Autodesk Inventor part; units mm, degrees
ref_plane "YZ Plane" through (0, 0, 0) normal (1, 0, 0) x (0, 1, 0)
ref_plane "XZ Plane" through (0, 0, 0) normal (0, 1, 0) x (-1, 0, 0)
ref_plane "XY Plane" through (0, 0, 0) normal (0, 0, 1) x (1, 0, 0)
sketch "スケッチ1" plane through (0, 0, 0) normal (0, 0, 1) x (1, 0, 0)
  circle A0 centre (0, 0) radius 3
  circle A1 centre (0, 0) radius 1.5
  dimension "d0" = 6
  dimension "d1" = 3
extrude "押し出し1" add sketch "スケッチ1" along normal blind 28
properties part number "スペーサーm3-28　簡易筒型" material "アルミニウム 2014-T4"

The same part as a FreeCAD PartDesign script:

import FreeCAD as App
import Part
import Sketcher
from FreeCAD import Vector
Q = App.Units.Quantity

doc = App.newDocument("Part")
body = doc.addObject("PartDesign::Body", "Body")

# Sketch on XY plane
sketch1 = body.newObject("Sketcher::SketchObject", "Sketch")
sketch1.AttachmentSupport = (doc.getObject("XY_Plane"), [""])
sketch1.MapMode = "FlatFace"
sketch1.addGeometry(Part.Circle(Vector(0, 0, 0), Vector(0, 0, 1), 3), False)
sketch1.addGeometry(Part.Circle(Vector(0, 0, 0), Vector(0, 0, 1), 1.5), False)
sketch1.addConstraint(Sketcher.Constraint("Coincident", 0, 3, -1, 1))
sketch1.addConstraint(Sketcher.Constraint("Coincident", 1, 3, -1, 1))
sketch1.addConstraint(Sketcher.Constraint("Diameter", 0, Q("6 mm")))
sketch1.addConstraint(Sketcher.Constraint("Diameter", 1, Q("3 mm")))
pad1 = body.newObject("PartDesign::Pad", "Pad")
pad1.Profile = sketch1
pad1.Length = 28

doc.recompute()
